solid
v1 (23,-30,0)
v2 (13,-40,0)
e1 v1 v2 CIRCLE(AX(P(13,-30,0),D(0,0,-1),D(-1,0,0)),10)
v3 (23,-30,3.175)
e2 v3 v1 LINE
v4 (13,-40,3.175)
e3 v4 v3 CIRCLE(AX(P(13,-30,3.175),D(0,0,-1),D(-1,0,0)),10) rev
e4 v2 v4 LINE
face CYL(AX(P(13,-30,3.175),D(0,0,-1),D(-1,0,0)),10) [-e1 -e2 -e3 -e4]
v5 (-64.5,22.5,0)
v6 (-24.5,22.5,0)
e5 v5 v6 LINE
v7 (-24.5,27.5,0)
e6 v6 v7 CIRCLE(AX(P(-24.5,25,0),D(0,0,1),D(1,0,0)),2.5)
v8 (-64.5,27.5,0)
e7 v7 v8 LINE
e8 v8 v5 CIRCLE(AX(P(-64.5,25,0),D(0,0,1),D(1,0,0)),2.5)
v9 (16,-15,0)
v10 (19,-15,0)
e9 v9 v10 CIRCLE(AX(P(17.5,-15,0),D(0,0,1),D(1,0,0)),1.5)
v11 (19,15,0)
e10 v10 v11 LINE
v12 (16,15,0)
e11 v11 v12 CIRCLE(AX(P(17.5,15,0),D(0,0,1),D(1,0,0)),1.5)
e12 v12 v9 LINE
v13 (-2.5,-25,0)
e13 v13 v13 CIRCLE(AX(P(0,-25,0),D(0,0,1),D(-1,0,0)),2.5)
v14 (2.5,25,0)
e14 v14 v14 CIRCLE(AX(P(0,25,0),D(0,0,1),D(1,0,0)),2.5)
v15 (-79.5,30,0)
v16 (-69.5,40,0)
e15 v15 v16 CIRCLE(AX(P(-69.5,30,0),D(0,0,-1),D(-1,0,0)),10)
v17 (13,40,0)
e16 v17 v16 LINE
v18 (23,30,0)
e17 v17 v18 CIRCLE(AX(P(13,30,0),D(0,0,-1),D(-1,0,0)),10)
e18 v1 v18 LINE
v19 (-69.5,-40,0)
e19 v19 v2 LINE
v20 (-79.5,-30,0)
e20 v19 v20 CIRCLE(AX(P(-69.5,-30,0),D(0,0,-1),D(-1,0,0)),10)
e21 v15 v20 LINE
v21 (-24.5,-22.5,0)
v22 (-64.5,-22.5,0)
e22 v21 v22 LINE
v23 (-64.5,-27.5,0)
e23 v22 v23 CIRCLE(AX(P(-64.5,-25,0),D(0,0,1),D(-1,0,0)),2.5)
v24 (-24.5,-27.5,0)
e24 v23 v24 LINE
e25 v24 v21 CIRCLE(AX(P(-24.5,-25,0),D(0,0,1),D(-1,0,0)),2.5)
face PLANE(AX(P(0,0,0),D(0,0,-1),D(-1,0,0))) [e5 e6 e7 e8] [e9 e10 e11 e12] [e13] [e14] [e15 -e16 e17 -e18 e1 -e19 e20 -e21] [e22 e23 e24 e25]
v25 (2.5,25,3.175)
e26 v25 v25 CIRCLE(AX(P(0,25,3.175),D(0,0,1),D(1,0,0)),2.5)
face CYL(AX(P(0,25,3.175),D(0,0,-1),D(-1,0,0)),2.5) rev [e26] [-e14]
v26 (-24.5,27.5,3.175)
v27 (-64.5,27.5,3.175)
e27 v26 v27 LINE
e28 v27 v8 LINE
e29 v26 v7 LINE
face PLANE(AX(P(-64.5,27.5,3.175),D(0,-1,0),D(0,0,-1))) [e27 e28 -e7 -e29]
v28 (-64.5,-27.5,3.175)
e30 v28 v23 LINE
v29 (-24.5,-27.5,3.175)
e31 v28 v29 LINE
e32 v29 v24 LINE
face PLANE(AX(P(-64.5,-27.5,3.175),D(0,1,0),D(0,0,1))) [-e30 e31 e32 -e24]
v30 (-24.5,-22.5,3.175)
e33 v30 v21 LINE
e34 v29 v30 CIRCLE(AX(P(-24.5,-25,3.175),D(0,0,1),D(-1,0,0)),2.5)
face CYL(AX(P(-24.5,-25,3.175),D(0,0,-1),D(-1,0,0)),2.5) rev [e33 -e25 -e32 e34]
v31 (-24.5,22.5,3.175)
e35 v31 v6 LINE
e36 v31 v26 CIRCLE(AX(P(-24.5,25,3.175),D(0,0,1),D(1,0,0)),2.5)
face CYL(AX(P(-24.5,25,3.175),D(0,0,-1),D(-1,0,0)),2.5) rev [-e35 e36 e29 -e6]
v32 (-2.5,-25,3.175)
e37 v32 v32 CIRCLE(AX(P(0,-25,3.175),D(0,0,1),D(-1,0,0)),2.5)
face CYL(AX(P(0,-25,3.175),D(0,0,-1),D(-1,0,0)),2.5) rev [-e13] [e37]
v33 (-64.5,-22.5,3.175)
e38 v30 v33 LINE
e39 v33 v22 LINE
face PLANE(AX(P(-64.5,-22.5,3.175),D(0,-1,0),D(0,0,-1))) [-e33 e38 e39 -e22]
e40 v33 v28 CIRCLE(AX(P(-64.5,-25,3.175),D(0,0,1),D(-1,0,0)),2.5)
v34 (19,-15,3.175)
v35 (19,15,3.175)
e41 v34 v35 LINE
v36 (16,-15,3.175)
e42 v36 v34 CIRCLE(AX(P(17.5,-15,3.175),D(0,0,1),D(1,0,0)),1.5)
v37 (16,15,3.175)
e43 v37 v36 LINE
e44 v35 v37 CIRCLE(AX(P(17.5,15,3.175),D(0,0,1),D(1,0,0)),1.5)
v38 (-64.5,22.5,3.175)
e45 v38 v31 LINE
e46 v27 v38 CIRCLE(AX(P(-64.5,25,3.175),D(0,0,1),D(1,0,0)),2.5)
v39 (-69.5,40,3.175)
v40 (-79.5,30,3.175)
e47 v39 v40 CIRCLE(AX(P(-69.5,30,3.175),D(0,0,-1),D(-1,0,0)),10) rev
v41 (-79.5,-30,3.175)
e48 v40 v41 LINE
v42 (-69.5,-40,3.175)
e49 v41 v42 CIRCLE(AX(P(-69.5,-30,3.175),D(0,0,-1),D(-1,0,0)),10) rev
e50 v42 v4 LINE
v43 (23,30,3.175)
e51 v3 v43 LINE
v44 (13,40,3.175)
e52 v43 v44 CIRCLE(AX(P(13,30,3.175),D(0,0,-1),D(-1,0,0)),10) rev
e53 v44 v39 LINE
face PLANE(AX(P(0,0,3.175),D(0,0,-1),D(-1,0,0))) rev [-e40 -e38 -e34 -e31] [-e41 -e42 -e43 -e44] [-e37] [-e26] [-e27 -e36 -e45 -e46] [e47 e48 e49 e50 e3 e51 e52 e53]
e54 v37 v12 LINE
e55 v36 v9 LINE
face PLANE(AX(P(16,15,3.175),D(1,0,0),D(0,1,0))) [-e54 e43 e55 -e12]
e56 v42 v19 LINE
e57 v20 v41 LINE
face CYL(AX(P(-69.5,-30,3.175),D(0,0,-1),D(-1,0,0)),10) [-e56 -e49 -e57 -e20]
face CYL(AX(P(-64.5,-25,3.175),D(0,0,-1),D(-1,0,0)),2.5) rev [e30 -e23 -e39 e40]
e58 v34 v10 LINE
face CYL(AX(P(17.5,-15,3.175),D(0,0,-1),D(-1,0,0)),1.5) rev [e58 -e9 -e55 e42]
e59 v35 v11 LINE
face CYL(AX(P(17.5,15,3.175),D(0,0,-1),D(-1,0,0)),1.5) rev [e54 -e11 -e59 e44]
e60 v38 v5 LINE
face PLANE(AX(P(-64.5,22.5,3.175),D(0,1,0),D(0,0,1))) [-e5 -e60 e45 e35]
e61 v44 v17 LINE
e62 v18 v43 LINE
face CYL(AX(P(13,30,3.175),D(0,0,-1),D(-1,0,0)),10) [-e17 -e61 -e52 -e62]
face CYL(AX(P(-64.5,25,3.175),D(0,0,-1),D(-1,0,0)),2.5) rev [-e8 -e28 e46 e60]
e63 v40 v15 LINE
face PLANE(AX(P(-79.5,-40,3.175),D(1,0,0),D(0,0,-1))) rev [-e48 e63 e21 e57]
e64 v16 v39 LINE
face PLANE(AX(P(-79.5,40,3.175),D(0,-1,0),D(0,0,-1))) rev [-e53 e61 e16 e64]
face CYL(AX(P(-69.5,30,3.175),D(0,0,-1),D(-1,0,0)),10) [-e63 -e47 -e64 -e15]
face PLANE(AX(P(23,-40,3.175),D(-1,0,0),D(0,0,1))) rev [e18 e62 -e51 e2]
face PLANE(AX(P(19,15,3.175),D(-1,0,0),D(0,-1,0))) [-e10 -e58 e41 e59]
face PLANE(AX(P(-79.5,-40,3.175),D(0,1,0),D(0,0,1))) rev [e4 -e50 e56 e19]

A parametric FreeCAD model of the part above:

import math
import FreeCAD as App
import Part
import Sketcher
from FreeCAD import Vector
Q = App.Units.Quantity


def edges_at(feature, points):
    """Names of the edges that pass closest to the given points."""
    edges = feature.Shape.Edges
    near = lambda p: min(range(len(edges)), key=lambda i: edges[i].distToShape(Part.Vertex(*p))[0])
    return sorted({f"Edge{near(p) + 1}" for p in points})

doc = App.newDocument("Part")
body = doc.addObject("PartDesign::Body", "Body")

# Sketch on XY plane
sketch1 = body.newObject("Sketcher::SketchObject", "Sketch")
sketch1.AttachmentSupport = (doc.getObject("XY_Plane"), [""])
sketch1.MapMode = "FlatFace"
sketch1.addGeometry([
    Part.LineSegment(Vector(-79.5, 40, 0), Vector(-79.5, -40, 0)),  # 0
    Part.LineSegment(Vector(-79.5, -40, 0), Vector(23, -40, 0)),  # 1
    Part.LineSegment(Vector(23, -40, 0), Vector(23, 40, 0)),  # 2
    Part.LineSegment(Vector(23, 40, 0), Vector(-79.5, 40, 0)),  # 3
    Part.LineSegment(Vector(-24.5, -27.5, 0), Vector(-64.5, -27.5, 0)),  # 4
    Part.ArcOfCircle(Part.Circle(Vector(-64.5, -25, 0), Vector(0, 0, 1), 2.5), math.radians(90), math.radians(270)),  # 5
    Part.LineSegment(Vector(-64.5, -22.5, 0), Vector(-24.5, -22.5, 0)),  # 6
    Part.ArcOfCircle(Part.Circle(Vector(-24.5, -25, 0), Vector(0, 0, 1), 2.5), math.radians(-90), math.radians(90)),  # 7
    Part.Circle(Vector(0, -25, 0), Vector(0, 0, 1), 2.5),  # 8
    Part.ArcOfCircle(Part.Circle(Vector(-64.5, 25, 0), Vector(0, 0, 1), 2.5), math.radians(90), math.radians(270)),  # 9
    Part.LineSegment(Vector(-64.5, 27.5, 0), Vector(-24.5, 27.5, 0)),  # 10
    Part.ArcOfCircle(Part.Circle(Vector(-24.5, 25, 0), Vector(0, 0, 1), 2.5), math.radians(-90), math.radians(90)),  # 11
    Part.LineSegment(Vector(-24.5, 22.5, 0), Vector(-64.5, 22.5, 0)),  # 12
    Part.ArcOfCircle(Part.Circle(Vector(17.5, 15, 0), Vector(0, 0, 1), 1.5), math.radians(0), math.radians(180)),  # 13
    Part.LineSegment(Vector(19, 15, 0), Vector(19, -15, 0)),  # 14
    Part.ArcOfCircle(Part.Circle(Vector(17.5, -15, 0), Vector(0, 0, 1), 1.5), math.radians(180), math.radians(360)),  # 15
    Part.LineSegment(Vector(16, -15, 0), Vector(16, 15, 0)),  # 16
    Part.Circle(Vector(0, 25, 0), Vector(0, 0, 1), 2.5),  # 17
], False)
sketch1.addConstraint([
    Sketcher.Constraint("Coincident", 0, 2, 1, 1),
    Sketcher.Constraint("Coincident", 1, 2, 2, 1),
    Sketcher.Constraint("Coincident", 2, 2, 3, 1),
    Sketcher.Constraint("Coincident", 3, 2, 0, 1),
    Sketcher.Constraint("Tangent", 4, 2, 5, 2),
    Sketcher.Constraint("Tangent", 5, 1, 6, 1),
    Sketcher.Constraint("Tangent", 6, 2, 7, 2),
    Sketcher.Constraint("Tangent", 7, 1, 4, 1),
    Sketcher.Constraint("Tangent", 9, 1, 10, 1),
    Sketcher.Constraint("Tangent", 10, 2, 11, 2),
    Sketcher.Constraint("Tangent", 11, 1, 12, 1),
    Sketcher.Constraint("Tangent", 12, 2, 9, 2),
    Sketcher.Constraint("Tangent", 13, 1, 14, 1),
    Sketcher.Constraint("Tangent", 14, 2, 15, 2),
    Sketcher.Constraint("Tangent", 15, 1, 16, 1),
    Sketcher.Constraint("Tangent", 16, 2, 13, 2),
    Sketcher.Constraint("Vertical", 0),
    Sketcher.Constraint("Horizontal", 1),
    Sketcher.Constraint("Vertical", 2),
    Sketcher.Constraint("Horizontal", 3),
    Sketcher.Constraint("Horizontal", 4),
    Sketcher.Constraint("Horizontal", 6),
    Sketcher.Constraint("Horizontal", 10),
    Sketcher.Constraint("Horizontal", 12),
    Sketcher.Constraint("Vertical", 14),
    Sketcher.Constraint("Vertical", 16),
    Sketcher.Constraint("Equal", 7, 8),
    Sketcher.Constraint("Equal", 8, 9),
    Sketcher.Constraint("Equal", 11, 17),
    Sketcher.Constraint("Symmetric", 8, 3, 17, 3, -1, 1),
    Sketcher.Constraint("Symmetric", 5, 3, 9, 3, -1),
    Sketcher.Constraint("PointOnObject", 8, 3, -2),
    Sketcher.Constraint("Horizontal", 7, 3, 8, 3),
    Sketcher.Constraint("Vertical", 7, 3, 11, 3),
    Sketcher.Constraint("Diameter", 8, Q("5 mm")),
    Sketcher.Constraint("Radius", 13, Q("1.5 mm")),
    Sketcher.Constraint("DistanceX", 4, 2, 4, 1, Q("40 mm")),
    Sketcher.Constraint("DistanceY", 0, 2, 0, 1, Q("80 mm")),
    Sketcher.Constraint("DistanceY", 14, 2, 14, 1, Q("30 mm")),
    Sketcher.Constraint("DistanceX", 1, 1, 1, 2, Q("102.5 mm")),
    Sketcher.Constraint("DistanceY", 5, 3, -1, 1, Q("25 mm")),
    Sketcher.Constraint("DistanceY", -1, 1, 13, 3, Q("15 mm")),
    Sketcher.Constraint("DistanceY", 0, 2, -1, 1, Q("40 mm")),
    Sketcher.Constraint("DistanceX", -1, 1, 1, 2, Q("23 mm")),
    Sketcher.Constraint("DistanceX", -1, 1, 13, 1, Q("19 mm")),
    Sketcher.Constraint("DistanceX", 11, 3, 13, 3, Q("42 mm")),
])
pad1 = body.newObject("PartDesign::Pad", "Pad")
pad1.Profile = sketch1
pad1.Length = 3.175
doc.recompute()

fillet = body.newObject("PartDesign::Fillet", "Fillet")
fillet.Base = (pad1, edges_at(pad1, [
    (23, -40, 1.587),
    (-79.5, -40, 1.587),
    (-79.5, 40, 1.587),
    (23, 40, 1.587),
]))
fillet.Radius = 10

doc.recompute()
